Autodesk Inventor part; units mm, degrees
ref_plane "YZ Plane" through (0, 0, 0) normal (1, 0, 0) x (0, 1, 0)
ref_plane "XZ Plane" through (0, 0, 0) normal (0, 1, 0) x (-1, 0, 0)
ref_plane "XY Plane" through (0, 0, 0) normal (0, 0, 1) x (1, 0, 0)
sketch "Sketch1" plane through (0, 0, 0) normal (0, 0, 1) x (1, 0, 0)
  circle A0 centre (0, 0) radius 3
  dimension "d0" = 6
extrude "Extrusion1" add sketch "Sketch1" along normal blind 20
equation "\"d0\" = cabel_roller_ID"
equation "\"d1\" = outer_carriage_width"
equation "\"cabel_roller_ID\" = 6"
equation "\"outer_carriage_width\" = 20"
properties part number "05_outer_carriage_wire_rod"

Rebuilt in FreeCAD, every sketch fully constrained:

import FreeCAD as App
import Part
import Sketcher

V = App.Vector

doc = App.newDocument("Part")
body = doc.addObject("PartDesign::Body", "Body")

sketch1 = doc.addObject("Sketcher::SketchObject", "Sketch")
body.addObject(sketch1)
sketch1.AttachmentSupport = (doc.XY_Plane, [""])
sketch1.MapMode = "FlatFace"
sketch1.addGeometry(Part.Circle(V(0, 0, 0), V(0, 0, 1), 3), False)
sketch1.addConstraint(Sketcher.Constraint("Coincident", 0, 3, -1, 1))
sketch1.addConstraint(Sketcher.Constraint("Diameter", 0, 6.0))
pad1 = doc.addObject("PartDesign::Pad", "Pad")
body.addObject(pad1)
pad1.Profile = sketch1
pad1.Length = 20

doc.recompute()
